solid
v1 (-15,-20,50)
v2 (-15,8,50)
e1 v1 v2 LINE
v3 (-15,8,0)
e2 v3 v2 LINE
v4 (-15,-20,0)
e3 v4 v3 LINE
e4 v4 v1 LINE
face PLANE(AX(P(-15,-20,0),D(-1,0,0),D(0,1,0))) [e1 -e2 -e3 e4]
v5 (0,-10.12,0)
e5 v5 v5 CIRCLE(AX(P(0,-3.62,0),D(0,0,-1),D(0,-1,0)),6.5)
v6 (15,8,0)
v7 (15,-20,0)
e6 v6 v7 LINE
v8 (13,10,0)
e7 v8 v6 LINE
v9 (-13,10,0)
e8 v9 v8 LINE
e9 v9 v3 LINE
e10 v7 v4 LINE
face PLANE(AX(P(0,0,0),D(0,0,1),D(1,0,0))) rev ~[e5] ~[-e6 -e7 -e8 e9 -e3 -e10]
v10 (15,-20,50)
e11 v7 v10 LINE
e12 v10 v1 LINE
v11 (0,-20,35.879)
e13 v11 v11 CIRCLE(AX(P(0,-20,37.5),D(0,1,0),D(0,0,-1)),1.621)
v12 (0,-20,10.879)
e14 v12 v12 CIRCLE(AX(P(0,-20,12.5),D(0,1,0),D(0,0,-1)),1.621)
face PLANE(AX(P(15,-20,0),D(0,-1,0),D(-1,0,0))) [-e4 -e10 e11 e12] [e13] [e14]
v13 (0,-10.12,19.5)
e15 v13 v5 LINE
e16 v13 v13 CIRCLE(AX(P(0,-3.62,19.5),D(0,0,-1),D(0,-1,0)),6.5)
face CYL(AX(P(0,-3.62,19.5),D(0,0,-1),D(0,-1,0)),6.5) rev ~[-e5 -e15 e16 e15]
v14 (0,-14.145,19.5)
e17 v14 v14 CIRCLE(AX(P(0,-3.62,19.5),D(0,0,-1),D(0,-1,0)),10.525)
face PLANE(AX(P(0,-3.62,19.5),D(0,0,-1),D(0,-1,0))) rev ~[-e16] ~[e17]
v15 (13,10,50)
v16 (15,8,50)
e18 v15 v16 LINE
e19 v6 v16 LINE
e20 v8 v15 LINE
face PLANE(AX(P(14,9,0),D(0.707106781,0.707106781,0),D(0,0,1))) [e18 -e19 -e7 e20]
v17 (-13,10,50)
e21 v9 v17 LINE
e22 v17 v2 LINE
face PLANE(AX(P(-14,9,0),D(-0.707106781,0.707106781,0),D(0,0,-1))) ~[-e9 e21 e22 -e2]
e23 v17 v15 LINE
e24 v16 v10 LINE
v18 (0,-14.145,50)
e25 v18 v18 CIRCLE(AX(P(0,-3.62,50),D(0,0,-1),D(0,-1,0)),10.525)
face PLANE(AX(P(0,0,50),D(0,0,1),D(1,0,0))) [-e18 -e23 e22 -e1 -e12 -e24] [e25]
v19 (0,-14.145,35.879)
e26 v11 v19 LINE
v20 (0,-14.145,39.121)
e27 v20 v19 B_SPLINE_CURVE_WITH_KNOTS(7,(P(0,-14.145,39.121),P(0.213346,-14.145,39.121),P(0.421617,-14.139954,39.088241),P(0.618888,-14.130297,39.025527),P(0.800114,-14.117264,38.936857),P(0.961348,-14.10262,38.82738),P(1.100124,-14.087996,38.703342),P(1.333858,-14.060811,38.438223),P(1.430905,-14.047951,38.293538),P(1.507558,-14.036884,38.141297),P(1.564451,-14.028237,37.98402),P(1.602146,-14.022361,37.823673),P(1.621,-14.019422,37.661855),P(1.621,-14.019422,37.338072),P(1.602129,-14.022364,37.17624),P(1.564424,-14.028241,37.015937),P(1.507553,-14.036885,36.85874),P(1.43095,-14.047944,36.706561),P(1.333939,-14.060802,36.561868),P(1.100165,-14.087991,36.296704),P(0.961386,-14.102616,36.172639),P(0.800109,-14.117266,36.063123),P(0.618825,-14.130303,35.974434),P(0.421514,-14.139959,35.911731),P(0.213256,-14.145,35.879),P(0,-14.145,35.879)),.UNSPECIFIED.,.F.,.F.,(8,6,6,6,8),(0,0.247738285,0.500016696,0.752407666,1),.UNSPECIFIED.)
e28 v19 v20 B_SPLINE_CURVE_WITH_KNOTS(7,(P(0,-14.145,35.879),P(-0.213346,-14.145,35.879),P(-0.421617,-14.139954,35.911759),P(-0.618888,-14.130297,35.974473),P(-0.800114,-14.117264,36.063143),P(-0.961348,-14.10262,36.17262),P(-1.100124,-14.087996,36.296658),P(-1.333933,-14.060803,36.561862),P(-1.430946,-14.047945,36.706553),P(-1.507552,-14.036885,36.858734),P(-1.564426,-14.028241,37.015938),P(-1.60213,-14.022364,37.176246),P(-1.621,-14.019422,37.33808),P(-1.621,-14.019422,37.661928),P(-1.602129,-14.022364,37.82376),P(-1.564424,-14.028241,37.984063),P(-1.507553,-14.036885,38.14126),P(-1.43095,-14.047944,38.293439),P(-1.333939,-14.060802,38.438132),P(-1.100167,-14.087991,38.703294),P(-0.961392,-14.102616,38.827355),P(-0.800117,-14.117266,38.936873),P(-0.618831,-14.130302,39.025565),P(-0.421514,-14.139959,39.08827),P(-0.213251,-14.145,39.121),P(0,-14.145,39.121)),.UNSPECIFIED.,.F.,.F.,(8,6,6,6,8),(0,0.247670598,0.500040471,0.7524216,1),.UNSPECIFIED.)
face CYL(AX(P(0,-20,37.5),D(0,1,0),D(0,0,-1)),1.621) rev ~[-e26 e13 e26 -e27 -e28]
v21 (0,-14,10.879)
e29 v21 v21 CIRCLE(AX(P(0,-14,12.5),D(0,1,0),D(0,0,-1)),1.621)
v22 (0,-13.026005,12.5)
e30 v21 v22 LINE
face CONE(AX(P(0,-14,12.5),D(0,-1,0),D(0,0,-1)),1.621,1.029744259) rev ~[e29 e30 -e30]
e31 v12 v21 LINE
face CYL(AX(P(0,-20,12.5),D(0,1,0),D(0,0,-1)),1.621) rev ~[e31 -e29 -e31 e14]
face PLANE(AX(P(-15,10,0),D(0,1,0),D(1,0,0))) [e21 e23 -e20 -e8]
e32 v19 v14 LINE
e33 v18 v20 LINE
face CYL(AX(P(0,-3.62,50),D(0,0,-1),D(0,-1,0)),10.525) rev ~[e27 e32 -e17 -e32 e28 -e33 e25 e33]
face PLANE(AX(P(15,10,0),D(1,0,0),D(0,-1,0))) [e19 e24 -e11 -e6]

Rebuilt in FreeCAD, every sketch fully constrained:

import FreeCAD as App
import Part
import Sketcher
from FreeCAD import Vector
Q = App.Units.Quantity


def edges_at(feature, points):
    """Names of the edges that pass closest to the given points."""
    edges = feature.Shape.Edges
    near = lambda p: min(range(len(edges)), key=lambda i: edges[i].distToShape(Part.Vertex(*p))[0])
    return sorted({f"Edge{near(p) + 1}" for p in points})


def add_polygon(sketch, points):
    """Adds a closed chain of lines whose ends are joined by coincident constraints."""
    first, n = sketch.GeometryCount, len(points)
    for a, b in zip(points, points[1:] + points[:1]):
        sketch.addGeometry(Part.LineSegment(App.Vector(*a, 0), App.Vector(*b, 0)), False)
    for i in range(n):
        sketch.addConstraint(Sketcher.Constraint("Coincident", first + i, 2, first + (i + 1) % n, 1))

doc = App.newDocument("Part")
body = doc.addObject("PartDesign::Body", "Body")

# Sketch on XY plane
sketch1 = body.newObject("Sketcher::SketchObject", "Sketch")
sketch1.AttachmentSupport = (doc.getObject("XY_Plane"), [""])
sketch1.MapMode = "FlatFace"
add_polygon(sketch1, [(15, 10), (-15, 10), (-15, -20), (15, -20)])  # lines 0-3
sketch1.addConstraint(Sketcher.Constraint("Horizontal", 0))
sketch1.addConstraint(Sketcher.Constraint("Vertical", 1))
sketch1.addConstraint(Sketcher.Constraint("Horizontal", 2))
sketch1.addConstraint(Sketcher.Constraint("Vertical", 3))
sketch1.addConstraint(Sketcher.Constraint("Equal", 2, 1))
sketch1.addConstraint(Sketcher.Constraint("DistanceX", 0, 2, 0, 1, Q("30 mm")))
sketch1.addConstraint(Sketcher.Constraint("DistanceX", 0, 2, -1, 1, Q("15 mm")))
sketch1.addConstraint(Sketcher.Constraint("DistanceY", -1, 1, 0, 2, Q("10 mm")))
pad1 = body.newObject("PartDesign::Pad", "Pad")
pad1.Profile = sketch1
pad1.Length = 50

# Sketch on XY plane
sketch2 = body.newObject("Sketcher::SketchObject", "Sketch001")
sketch2.AttachmentSupport = (doc.getObject("XY_Plane"), [""])
sketch2.MapMode = "FlatFace"
sketch2.AttachmentOffset = App.Placement(Vector(0, 0, 50), App.Rotation())
sketch2.addGeometry(Part.Circle(Vector(0, -4, 0), Vector(0, 0, 1), 6), False)
sketch2.addConstraint(Sketcher.Constraint("PointOnObject", 0, 3, -2))
sketch2.addConstraint(Sketcher.Constraint("Diameter", 0, Q("13 mm")))
sketch2.addConstraint(Sketcher.Constraint("DistanceY", 0, 3, -1, 1, Q("3.62 mm")))
doc.recompute()
hole = body.newObject("PartDesign::Hole", "Hole")
hole.Profile = sketch2
hole.ThreadType = "None"
hole.Diameter = 13
hole.DepthType = "ThroughAll"
hole.HoleCutType = "Counterbore"
hole.HoleCutDiameter = 21.05
hole.HoleCutDepth = 30.5

# Sketch on XZ plane
sketch3 = body.newObject("Sketcher::SketchObject", "Sketch002")
sketch3.AttachmentSupport = (doc.getObject("XZ_Plane"), [""])
sketch3.MapMode = "FlatFace"
sketch3.AttachmentOffset = App.Placement(Vector(0, 0, 20), App.Rotation())
sketch3.addGeometry(Part.Circle(Vector(0, 12.5, 0), Vector(0, 0, 1), 1.6), False)
sketch3.addGeometry(Part.Circle(Vector(0, 37.5, 0), Vector(0, 0, 1), 1.6), False)
sketch3.addConstraint(Sketcher.Constraint("Equal", 0, 1))
sketch3.addConstraint(Sketcher.Constraint("PointOnObject", 0, 3, -2))
sketch3.addConstraint(Sketcher.Constraint("PointOnObject", 1, 3, -2))
sketch3.addConstraint(Sketcher.Constraint("Diameter", 0, Q("3.242 mm")))
sketch3.addConstraint(Sketcher.Constraint("DistanceY", 0, 3, 1, 3, Q("25 mm")))
sketch3.addConstraint(Sketcher.Constraint("DistanceY", -1, 1, 0, 3, Q("12.5 mm")))
doc.recompute()
hole2 = body.newObject("PartDesign::Hole", "Hole001")
hole2.Profile = sketch3
hole2.ThreadType = "None"
hole2.Diameter = 3.242
hole2.DepthType = "Dimension"
hole2.Depth = 6
hole2.DrillPoint = "Angled"
hole2.DrillPointAngle = 118
doc.recompute()

chamfer = body.newObject("PartDesign::Chamfer", "Chamfer")
chamfer.Base = (hole2, edges_at(hole2, [(15, 10, 25), (-15, 10, 25)]))
chamfer.Size = 2

doc.recompute()
